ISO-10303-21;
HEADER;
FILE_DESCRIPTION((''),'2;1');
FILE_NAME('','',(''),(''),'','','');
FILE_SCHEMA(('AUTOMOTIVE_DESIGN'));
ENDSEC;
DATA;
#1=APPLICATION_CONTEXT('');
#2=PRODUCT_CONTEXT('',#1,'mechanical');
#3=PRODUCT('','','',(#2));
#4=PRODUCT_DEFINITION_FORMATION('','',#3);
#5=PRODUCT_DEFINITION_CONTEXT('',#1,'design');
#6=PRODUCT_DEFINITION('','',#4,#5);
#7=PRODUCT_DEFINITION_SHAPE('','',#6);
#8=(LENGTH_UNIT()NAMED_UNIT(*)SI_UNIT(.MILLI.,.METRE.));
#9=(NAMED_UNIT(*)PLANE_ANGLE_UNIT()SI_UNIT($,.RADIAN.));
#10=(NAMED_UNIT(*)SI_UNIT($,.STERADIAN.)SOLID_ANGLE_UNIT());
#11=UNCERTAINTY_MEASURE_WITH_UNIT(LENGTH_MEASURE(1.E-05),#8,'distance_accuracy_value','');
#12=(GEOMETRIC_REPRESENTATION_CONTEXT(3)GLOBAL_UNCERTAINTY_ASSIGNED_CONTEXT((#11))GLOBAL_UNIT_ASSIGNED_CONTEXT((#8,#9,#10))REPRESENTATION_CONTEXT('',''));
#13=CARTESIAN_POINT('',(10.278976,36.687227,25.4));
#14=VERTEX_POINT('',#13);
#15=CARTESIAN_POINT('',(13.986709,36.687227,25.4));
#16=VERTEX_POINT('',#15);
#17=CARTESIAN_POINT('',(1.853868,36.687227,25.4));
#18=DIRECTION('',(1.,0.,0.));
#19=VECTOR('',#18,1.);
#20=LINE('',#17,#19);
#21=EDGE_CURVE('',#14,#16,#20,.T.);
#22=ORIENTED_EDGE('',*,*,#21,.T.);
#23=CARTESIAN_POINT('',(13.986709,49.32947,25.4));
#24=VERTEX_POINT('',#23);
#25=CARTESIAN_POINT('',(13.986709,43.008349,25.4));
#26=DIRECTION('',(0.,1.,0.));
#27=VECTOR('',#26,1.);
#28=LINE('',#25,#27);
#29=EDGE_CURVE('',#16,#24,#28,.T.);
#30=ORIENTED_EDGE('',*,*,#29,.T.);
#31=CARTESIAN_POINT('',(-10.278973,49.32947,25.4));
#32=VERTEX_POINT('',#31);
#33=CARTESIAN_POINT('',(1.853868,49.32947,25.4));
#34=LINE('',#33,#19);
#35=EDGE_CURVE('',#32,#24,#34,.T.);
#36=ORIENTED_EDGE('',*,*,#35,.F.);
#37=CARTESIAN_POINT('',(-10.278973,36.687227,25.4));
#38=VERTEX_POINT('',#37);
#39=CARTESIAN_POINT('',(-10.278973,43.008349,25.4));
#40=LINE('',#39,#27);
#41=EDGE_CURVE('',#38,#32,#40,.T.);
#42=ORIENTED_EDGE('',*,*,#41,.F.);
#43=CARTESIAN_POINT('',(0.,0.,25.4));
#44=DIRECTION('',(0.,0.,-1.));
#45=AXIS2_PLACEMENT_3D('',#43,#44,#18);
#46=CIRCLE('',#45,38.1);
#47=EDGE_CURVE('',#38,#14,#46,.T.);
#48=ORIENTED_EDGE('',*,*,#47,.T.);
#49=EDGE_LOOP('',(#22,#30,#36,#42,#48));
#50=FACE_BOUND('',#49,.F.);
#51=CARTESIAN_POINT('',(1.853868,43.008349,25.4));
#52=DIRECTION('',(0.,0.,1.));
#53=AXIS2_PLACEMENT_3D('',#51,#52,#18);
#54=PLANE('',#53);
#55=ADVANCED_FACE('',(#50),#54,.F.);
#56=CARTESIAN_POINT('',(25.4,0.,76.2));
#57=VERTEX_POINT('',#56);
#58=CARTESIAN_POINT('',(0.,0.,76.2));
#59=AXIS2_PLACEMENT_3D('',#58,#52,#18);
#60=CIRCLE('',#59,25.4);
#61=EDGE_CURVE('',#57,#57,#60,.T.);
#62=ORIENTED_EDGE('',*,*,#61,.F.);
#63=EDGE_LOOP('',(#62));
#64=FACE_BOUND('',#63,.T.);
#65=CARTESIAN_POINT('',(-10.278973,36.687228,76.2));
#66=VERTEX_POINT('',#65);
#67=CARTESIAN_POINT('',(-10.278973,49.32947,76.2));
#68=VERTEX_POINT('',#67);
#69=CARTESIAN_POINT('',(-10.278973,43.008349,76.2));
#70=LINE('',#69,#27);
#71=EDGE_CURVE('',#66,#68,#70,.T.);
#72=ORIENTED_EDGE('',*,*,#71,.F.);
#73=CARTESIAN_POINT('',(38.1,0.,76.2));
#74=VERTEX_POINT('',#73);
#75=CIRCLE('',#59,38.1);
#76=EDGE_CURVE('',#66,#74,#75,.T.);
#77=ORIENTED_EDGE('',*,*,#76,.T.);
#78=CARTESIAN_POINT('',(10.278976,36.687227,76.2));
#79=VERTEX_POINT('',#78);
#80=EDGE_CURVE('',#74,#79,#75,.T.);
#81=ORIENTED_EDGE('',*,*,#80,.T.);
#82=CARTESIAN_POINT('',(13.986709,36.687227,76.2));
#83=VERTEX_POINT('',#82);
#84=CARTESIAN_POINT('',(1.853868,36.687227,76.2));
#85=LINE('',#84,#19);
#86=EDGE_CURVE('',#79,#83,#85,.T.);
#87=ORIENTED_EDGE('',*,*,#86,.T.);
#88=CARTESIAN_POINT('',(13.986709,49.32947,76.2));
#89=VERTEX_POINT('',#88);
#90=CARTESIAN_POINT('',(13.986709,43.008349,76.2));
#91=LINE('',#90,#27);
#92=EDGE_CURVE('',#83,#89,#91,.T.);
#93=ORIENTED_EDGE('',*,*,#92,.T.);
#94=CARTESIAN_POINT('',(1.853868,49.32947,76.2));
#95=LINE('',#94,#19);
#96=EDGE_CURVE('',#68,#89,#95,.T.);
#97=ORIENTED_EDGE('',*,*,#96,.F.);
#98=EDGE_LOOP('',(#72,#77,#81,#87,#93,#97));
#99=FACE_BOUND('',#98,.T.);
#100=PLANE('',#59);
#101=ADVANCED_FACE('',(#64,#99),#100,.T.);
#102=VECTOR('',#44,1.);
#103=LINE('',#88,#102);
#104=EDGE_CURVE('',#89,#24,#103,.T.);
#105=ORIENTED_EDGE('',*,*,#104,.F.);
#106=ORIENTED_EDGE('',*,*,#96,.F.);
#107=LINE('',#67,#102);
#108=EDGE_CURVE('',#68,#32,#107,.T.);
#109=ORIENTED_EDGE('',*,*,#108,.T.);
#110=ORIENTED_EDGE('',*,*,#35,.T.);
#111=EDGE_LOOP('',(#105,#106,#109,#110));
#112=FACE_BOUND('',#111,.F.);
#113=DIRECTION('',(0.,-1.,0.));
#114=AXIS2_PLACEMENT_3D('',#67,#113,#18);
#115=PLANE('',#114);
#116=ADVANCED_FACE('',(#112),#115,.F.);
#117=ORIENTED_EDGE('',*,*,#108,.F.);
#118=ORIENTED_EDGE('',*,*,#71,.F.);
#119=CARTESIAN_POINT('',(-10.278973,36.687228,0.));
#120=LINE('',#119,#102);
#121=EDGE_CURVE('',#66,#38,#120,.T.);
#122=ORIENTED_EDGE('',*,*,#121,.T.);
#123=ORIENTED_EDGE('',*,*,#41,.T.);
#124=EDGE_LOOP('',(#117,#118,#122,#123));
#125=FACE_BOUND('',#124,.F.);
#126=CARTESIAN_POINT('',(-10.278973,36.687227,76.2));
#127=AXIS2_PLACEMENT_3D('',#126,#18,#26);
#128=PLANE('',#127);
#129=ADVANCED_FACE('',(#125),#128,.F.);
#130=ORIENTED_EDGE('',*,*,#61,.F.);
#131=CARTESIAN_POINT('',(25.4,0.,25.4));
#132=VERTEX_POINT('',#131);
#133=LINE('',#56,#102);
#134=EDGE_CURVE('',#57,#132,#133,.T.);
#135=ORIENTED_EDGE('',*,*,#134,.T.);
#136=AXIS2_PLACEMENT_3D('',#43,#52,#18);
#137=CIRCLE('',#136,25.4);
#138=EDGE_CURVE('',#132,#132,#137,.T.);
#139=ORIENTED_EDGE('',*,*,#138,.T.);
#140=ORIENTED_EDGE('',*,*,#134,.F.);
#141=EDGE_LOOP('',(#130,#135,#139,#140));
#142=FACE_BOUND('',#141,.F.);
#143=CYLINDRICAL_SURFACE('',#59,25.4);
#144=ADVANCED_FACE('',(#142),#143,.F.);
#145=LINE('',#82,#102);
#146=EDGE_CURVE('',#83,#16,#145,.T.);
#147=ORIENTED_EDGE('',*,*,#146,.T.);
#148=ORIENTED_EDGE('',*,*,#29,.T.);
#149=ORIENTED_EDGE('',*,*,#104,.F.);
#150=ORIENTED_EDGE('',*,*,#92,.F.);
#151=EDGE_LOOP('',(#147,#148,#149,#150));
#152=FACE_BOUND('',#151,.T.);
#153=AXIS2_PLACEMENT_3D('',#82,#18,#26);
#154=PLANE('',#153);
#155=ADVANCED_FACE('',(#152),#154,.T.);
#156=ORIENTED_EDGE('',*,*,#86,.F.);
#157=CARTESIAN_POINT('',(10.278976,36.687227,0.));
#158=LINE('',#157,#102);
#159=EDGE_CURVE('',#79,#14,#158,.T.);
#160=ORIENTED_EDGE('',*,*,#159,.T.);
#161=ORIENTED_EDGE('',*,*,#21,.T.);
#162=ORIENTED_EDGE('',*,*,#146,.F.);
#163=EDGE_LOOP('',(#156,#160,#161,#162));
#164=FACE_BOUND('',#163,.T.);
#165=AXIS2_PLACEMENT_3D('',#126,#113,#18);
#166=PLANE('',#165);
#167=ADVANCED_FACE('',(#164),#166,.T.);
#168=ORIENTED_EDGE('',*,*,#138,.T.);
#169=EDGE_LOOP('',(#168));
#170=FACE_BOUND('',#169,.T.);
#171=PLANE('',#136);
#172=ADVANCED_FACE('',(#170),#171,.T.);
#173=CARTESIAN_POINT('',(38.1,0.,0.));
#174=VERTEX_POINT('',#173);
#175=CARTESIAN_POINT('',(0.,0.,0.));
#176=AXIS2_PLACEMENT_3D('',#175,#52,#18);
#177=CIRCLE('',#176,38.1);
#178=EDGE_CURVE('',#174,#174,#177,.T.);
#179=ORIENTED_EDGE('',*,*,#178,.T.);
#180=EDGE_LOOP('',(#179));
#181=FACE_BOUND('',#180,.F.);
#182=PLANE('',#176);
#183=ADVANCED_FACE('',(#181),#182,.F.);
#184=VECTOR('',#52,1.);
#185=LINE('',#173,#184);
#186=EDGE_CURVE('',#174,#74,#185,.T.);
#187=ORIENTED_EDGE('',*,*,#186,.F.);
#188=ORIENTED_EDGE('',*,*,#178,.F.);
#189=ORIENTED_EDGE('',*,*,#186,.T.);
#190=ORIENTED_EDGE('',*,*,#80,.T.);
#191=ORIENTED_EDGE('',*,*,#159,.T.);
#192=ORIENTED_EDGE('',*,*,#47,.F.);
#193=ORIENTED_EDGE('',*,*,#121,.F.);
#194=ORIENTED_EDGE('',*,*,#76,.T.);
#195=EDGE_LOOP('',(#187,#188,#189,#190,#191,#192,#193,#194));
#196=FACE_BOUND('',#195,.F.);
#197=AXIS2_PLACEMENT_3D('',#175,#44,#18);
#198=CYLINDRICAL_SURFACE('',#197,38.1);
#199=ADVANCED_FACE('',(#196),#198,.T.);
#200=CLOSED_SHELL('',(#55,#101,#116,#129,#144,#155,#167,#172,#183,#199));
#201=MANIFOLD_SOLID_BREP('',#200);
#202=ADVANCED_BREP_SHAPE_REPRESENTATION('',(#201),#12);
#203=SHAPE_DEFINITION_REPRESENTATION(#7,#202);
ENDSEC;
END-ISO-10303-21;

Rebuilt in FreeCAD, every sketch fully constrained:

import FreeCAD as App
import Part
import Sketcher

V = App.Vector
Q = App.Units.Quantity

doc = App.newDocument("Part")
body = doc.addObject("PartDesign::Body", "Body")

# Sketch on XY plane
sketch1 = doc.addObject("Sketcher::SketchObject", "Sketch")
body.addObject(sketch1)
sketch1.AttachmentSupport = (doc.XY_Plane, [""])
sketch1.MapMode = "FlatFace"
sketch1.addGeometry(Part.Circle(V(0, 0, 0), V(0, 0, 1), 38), False)
sketch1.addConstraint([
    Sketcher.Constraint("Coincident", 0, 3, -1, 1),
    Sketcher.Constraint("Diameter", 0, Q("3 in")),
])
pad1 = doc.addObject("PartDesign::Pad", "Pad")
body.addObject(pad1)
pad1.Profile = sketch1
pad1.Length = Q("3 in")

# Sketch on XY plane
sketch2 = doc.addObject("Sketcher::SketchObject", "Sketch001")
body.addObject(sketch2)
sketch2.AttachmentSupport = (doc.XY_Plane, [""])
sketch2.MapMode = "FlatFace"
sketch2.AttachmentOffset = App.Placement(V(0, 0, 3 * 25.4), App.Rotation())
sketch2.addGeometry(Part.Circle(V(0, 0, 0), V(0, 0, 1), 25), False)
sketch2.addConstraint([
    Sketcher.Constraint("Coincident", 0, 3, -1, 1),
    Sketcher.Constraint("Diameter", 0, Q("2 in")),
])
pocket1 = doc.addObject("PartDesign::Pocket", "Pocket")
body.addObject(pocket1)
pocket1.Profile = sketch2
pocket1.Length = Q("2 in")

# Sketch on XY plane
sketch3 = doc.addObject("Sketcher::SketchObject", "Sketch002")
body.addObject(sketch3)
sketch3.AttachmentSupport = (doc.XY_Plane, [""])
sketch3.MapMode = "FlatFace"
sketch3.AttachmentOffset = App.Placement(V(0, 0, 3 * 25.4), App.Rotation())
sketch3.addGeometry([
    Part.LineSegment(V(-10, 49, 0), V(-10, 37, 0)),
    Part.LineSegment(V(-10, 37, 0), V(14, 37, 0)),
    Part.LineSegment(V(14, 37, 0), V(14, 49, 0)),
    Part.LineSegment(V(14, 49, 0), V(-10, 49, 0)),
], False)
sketch3.addConstraint([
    Sketcher.Constraint("Coincident", 0, 2, 1, 1),
    Sketcher.Constraint("Coincident", 1, 2, 2, 1),
    Sketcher.Constraint("Coincident", 2, 2, 3, 1),
    Sketcher.Constraint("Coincident", 3, 2, 0, 1),
    Sketcher.Constraint("Vertical", 0),
    Sketcher.Constraint("Horizontal", 1),
    Sketcher.Constraint("Vertical", 2),
    Sketcher.Constraint("Horizontal", 3),
    Sketcher.Constraint("DistanceX", 1, 1, 1, 2, 24.265683),
    Sketcher.Constraint("DistanceY", 0, 2, 0, 1, 12.642243),
    Sketcher.Constraint("DistanceX", -1, 1, 1, 2, 13.986709),
    Sketcher.Constraint("DistanceY", -1, 1, 2, 2, 49.32947),
])
pad2 = doc.addObject("PartDesign::Pad", "Pad001")
body.addObject(pad2)
pad2.Profile = sketch3
pad2.Length = Q("2 in")
pad2.Reversed = True

doc.recompute()
